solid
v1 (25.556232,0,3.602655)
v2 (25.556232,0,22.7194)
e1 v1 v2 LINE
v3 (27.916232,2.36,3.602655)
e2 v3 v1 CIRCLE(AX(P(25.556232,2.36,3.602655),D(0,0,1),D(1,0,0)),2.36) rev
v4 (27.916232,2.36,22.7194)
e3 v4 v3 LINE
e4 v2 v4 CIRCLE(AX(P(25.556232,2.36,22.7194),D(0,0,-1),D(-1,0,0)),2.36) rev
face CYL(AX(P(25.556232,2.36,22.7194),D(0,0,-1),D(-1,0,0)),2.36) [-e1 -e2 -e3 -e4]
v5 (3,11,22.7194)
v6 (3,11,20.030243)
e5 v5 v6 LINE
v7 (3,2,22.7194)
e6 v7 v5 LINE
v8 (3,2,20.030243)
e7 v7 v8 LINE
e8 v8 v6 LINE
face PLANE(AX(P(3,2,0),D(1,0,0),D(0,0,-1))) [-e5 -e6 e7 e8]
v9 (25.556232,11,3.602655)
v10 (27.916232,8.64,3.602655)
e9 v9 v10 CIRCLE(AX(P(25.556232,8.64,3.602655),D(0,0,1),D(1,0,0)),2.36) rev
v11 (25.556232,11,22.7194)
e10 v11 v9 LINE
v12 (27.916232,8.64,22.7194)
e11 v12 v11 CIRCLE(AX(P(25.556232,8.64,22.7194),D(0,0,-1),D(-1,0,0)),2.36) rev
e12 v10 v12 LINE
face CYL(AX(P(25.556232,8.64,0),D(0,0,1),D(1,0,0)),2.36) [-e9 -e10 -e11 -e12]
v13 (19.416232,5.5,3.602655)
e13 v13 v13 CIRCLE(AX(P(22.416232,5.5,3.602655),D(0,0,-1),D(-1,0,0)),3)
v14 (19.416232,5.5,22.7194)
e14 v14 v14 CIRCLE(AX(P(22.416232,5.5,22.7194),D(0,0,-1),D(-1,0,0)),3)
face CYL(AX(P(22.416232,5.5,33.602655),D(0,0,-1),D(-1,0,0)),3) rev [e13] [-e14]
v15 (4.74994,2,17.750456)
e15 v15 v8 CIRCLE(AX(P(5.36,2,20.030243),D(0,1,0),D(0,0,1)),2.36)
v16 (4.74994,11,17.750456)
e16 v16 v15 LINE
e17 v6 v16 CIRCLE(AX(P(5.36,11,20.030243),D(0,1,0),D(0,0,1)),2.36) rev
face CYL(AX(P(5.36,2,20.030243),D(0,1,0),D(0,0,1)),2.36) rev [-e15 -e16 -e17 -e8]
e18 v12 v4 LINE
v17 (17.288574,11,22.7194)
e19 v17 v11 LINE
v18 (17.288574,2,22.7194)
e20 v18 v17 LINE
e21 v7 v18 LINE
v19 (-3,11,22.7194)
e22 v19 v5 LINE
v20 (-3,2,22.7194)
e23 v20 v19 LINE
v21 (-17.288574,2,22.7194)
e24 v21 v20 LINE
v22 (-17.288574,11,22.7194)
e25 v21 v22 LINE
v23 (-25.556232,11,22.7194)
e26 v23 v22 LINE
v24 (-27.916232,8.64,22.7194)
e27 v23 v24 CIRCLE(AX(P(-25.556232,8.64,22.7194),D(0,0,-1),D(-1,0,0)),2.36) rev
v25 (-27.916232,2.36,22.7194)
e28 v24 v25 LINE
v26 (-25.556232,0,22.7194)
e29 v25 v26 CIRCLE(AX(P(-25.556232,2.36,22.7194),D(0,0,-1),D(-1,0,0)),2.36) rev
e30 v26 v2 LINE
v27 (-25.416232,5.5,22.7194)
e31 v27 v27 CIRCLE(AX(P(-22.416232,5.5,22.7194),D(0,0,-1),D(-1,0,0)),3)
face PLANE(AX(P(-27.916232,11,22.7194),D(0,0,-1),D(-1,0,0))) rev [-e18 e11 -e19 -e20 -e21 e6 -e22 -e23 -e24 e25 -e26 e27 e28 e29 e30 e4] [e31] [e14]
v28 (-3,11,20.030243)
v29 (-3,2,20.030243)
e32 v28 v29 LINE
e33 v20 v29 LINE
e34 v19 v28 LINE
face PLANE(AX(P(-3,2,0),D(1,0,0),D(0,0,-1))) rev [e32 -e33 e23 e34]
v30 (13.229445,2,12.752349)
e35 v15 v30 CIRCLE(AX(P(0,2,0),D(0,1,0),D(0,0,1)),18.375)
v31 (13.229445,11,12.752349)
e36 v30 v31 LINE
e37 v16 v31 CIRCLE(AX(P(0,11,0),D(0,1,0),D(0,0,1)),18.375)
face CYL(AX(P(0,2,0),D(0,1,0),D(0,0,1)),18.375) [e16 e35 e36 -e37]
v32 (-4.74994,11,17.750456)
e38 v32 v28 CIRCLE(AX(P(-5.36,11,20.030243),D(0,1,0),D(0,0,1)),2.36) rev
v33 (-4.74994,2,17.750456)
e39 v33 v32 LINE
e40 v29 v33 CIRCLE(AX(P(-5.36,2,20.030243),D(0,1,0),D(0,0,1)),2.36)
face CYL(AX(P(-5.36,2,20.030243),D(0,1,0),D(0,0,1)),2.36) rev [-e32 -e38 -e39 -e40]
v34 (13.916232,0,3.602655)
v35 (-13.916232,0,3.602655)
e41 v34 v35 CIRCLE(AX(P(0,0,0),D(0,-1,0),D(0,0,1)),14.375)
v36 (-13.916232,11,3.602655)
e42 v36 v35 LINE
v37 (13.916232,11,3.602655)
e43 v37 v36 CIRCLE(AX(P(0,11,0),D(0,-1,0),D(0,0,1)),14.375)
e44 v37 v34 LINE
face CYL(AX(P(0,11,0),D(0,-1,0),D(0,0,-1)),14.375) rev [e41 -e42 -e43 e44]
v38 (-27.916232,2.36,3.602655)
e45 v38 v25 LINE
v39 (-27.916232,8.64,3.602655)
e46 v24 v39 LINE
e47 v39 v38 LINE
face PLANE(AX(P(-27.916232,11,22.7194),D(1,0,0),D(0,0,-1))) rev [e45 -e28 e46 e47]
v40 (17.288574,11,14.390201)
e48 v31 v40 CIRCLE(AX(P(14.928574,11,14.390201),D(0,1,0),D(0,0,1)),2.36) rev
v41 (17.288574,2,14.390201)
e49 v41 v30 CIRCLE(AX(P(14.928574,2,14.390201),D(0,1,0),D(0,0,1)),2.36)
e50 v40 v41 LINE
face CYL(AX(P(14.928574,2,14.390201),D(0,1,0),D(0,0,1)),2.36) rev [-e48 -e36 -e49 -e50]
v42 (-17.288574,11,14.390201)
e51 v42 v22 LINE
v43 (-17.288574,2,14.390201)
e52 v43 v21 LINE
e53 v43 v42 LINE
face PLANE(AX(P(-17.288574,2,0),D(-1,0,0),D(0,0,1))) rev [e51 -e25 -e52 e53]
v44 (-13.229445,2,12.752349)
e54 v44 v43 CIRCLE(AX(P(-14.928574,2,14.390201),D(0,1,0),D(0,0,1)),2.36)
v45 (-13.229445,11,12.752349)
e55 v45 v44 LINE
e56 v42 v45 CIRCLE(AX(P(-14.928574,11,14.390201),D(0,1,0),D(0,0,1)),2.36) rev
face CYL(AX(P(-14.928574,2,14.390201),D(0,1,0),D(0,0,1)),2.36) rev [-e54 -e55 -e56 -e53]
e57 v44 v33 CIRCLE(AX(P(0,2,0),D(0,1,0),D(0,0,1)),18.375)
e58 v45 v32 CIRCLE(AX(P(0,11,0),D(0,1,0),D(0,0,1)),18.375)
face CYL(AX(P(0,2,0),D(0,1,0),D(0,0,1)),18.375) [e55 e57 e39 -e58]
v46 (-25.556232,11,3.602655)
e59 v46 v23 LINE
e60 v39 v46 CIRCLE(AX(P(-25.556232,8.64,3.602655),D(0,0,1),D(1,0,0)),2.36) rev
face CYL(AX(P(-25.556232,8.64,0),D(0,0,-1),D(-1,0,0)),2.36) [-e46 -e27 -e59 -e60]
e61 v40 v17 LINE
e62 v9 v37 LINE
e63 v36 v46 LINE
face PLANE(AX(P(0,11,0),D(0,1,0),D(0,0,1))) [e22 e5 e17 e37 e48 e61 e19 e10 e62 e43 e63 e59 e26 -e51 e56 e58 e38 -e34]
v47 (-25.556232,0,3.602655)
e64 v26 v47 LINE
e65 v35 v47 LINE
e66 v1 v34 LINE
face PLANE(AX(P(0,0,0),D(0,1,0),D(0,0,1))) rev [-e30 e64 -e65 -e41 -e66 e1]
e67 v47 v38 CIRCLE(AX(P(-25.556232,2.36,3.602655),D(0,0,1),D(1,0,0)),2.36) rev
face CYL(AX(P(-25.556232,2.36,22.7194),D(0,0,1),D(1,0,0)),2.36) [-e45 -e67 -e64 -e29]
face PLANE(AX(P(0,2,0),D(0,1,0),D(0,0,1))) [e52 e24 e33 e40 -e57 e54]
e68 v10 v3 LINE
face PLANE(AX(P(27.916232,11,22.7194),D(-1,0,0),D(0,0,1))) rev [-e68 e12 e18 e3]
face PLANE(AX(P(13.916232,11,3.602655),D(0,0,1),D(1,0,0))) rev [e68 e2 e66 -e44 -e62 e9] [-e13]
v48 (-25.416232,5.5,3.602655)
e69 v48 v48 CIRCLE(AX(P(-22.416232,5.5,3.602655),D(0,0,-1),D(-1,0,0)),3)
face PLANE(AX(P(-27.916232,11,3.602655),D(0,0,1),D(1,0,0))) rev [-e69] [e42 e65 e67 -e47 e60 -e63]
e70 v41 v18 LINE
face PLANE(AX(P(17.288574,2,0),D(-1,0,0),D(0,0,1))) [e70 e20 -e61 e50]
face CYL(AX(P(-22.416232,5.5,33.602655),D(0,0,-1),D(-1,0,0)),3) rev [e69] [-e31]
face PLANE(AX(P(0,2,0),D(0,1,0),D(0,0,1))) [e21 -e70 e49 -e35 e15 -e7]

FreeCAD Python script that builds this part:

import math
import FreeCAD as App
import Part
import Sketcher
Q = App.Units.Quantity


def edges_at(feature, points):
    """Names of the edges that pass closest to the given points."""
    edges = feature.Shape.Edges
    near = lambda p: min(range(len(edges)), key=lambda i: edges[i].distToShape(Part.Vertex(*p))[0])
    return sorted({f"Edge{near(p) + 1}" for p in points})

doc = App.newDocument("Part")
body = doc.addObject("PartDesign::Body", "Body")

# Sketch on XZ plane
sketch1 = doc.addObject("Sketcher::SketchObject", "Sketch")
body.addObject(sketch1)
sketch1.AttachmentSupport = (doc.XZ_Plane, [""])
sketch1.MapMode = "FlatFace"
sketch1.addGeometry(Part.LineSegment(App.Vector(-27.916232, 22.7194, 0), App.Vector(27.916232, 22.7194, 0)), False)
sketch1.addGeometry(Part.LineSegment(App.Vector(27.916232, 22.7194, 0), App.Vector(27.916232, 3.602655, 0)), False)
sketch1.addGeometry(Part.LineSegment(App.Vector(27.916232, 3.602655, 0), App.Vector(13.916232, 3.602655, 0)), False)
sketch1.addGeometry(Part.ArcOfCircle(Part.Circle(App.Vector(0, 0, 0), App.Vector(0, 0, 1), 14.375), math.radians(14.514173), math.radians(165.485827)), False)
sketch1.addGeometry(Part.LineSegment(App.Vector(-13.916232, 3.602655, 0), App.Vector(-27.916232, 3.602655, 0)), False)
sketch1.addGeometry(Part.LineSegment(App.Vector(-27.916232, 3.602655, 0), App.Vector(-27.916232, 22.7194, 0)), False)
sketch1.addConstraint(Sketcher.Constraint("Coincident", 0, 2, 1, 1))
sketch1.addConstraint(Sketcher.Constraint("Coincident", 1, 2, 2, 1))
sketch1.addConstraint(Sketcher.Constraint("Coincident", 2, 2, 3, 1))
sketch1.addConstraint(Sketcher.Constraint("Coincident", 3, 2, 4, 1))
sketch1.addConstraint(Sketcher.Constraint("Coincident", 4, 2, 5, 1))
sketch1.addConstraint(Sketcher.Constraint("Coincident", 5, 2, 0, 1))
sketch1.addConstraint(Sketcher.Constraint("Horizontal", 0))
sketch1.addConstraint(Sketcher.Constraint("Vertical", 1))
sketch1.addConstraint(Sketcher.Constraint("Horizontal", 2))
sketch1.addConstraint(Sketcher.Constraint("Horizontal", 4))
sketch1.addConstraint(Sketcher.Constraint("Vertical", 5))
sketch1.addConstraint(Sketcher.Constraint("Coincident", 3, 3, -1, 1))
sketch1.addConstraint(Sketcher.Constraint("Symmetric", 1, 2, 4, 2, -2))
sketch1.addConstraint(Sketcher.Constraint("DistanceX", 2, 2, 2, 1, Q("14 mm")))
sketch1.addConstraint(Sketcher.Constraint("Radius", 3, Q("14.375 mm")))
sketch1.addConstraint(Sketcher.Constraint("DistanceY", -1, 1, 0, 2, Q("22.7194 mm")))
sketch1.addConstraint(Sketcher.Constraint("DistanceX", 0, 1, 0, 2, Q("55.832463 mm")))
pad1 = doc.addObject("PartDesign::Pad", "Pad")
body.addObject(pad1)
pad1.Profile = sketch1
pad1.Length = 11
pad1.Reversed = True

# Sketch on XY plane
sketch2 = doc.addObject("Sketcher::SketchObject", "Sketch001")
body.addObject(sketch2)
sketch2.AttachmentSupport = (doc.XY_Plane, [""])
sketch2.MapMode = "FlatFace"
sketch2.AttachmentOffset = App.Placement(App.Vector(0, 0, 3.602655), App.Rotation())
sketch2.addGeometry(Part.Circle(App.Vector(-22.416232, 5.5, 0), App.Vector(0, 0, 1), 3), False)
sketch2.addGeometry(Part.Circle(App.Vector(22.416232, 5.5, 0), App.Vector(0, 0, 1), 3), False)
sketch2.addConstraint(Sketcher.Constraint("Equal", 0, 1))
sketch2.addConstraint(Sketcher.Constraint("Symmetric", 0, 3, 1, 3, -2))
sketch2.addConstraint(Sketcher.Constraint("Diameter", 0, Q("6 mm")))
sketch2.addConstraint(Sketcher.Constraint("DistanceY", -1, 1, 0, 3, Q("5.5 mm")))
sketch2.addConstraint(Sketcher.Constraint("DistanceX", 0, 3, -1, 1, Q("22.416232 mm")))
pocket1 = doc.addObject("PartDesign::Pocket", "Pocket")
body.addObject(pocket1)
pocket1.Profile = sketch2
pocket1.Length = 30
pocket1.Reversed = True

# Sketch on XZ plane
sketch3 = doc.addObject("Sketcher::SketchObject", "Sketch002")
body.addObject(sketch3)
sketch3.AttachmentSupport = (doc.XZ_Plane, [""])
sketch3.MapMode = "FlatFace"
sketch3.AttachmentOffset = App.Placement(App.Vector(0, 0, -11), App.Rotation())
sketch3.addGeometry(Part.LineSegment(App.Vector(-17.288574, 6.224614, 0), App.Vector(-17.288574, 22.7194, 0)), False)
sketch3.addGeometry(Part.LineSegment(App.Vector(-17.288574, 22.7194, 0), App.Vector(-3, 22.7194, 0)), False)
sketch3.addGeometry(Part.LineSegment(App.Vector(-3, 22.7194, 0), App.Vector(-3, 18.128448, 0)), False)
sketch3.addGeometry(Part.ArcOfCircle(Part.Circle(App.Vector(0, 0, 0), App.Vector(0, 0, 1), 18.375), math.radians(99.396477), math.radians(160.198989)), False)
sketch3.addGeometry(Part.LineSegment(App.Vector(3, 18.128448, 0), App.Vector(3, 22.7194, 0)), False)
sketch3.addGeometry(Part.LineSegment(App.Vector(3, 22.7194, 0), App.Vector(17.288574, 22.7194, 0)), False)
sketch3.addGeometry(Part.LineSegment(App.Vector(17.288574, 22.7194, 0), App.Vector(17.288574, 6.224614, 0)), False)
sketch3.addGeometry(Part.ArcOfCircle(Part.Circle(App.Vector(0, 0, 0), App.Vector(0, 0, 1), 18.375), math.radians(19.801011), math.radians(80.603523)), False)
sketch3.addConstraint(Sketcher.Constraint("Coincident", 0, 2, 1, 1))
sketch3.addConstraint(Sketcher.Constraint("Coincident", 1, 2, 2, 1))
sketch3.addConstraint(Sketcher.Constraint("Coincident", 2, 2, 3, 1))
sketch3.addConstraint(Sketcher.Constraint("Coincident", 3, 2, 0, 1))
sketch3.addConstraint(Sketcher.Constraint("Coincident", 4, 2, 5, 1))
sketch3.addConstraint(Sketcher.Constraint("Coincident", 5, 2, 6, 1))
sketch3.addConstraint(Sketcher.Constraint("Coincident", 6, 2, 7, 1))
sketch3.addConstraint(Sketcher.Constraint("Coincident", 7, 2, 4, 1))
sketch3.addConstraint(Sketcher.Constraint("Vertical", 0))
sketch3.addConstraint(Sketcher.Constraint("Horizontal", 1))
sketch3.addConstraint(Sketcher.Constraint("Vertical", 2))
sketch3.addConstraint(Sketcher.Constraint("Vertical", 4))
sketch3.addConstraint(Sketcher.Constraint("Horizontal", 5))
sketch3.addConstraint(Sketcher.Constraint("Vertical", 6))
sketch3.addConstraint(Sketcher.Constraint("Coincident", 3, 3, -1, 1))
sketch3.addConstraint(Sketcher.Constraint("Coincident", 7, 3, -1, 1))
sketch3.addConstraint(Sketcher.Constraint("Equal", 3, 7))
sketch3.addConstraint(Sketcher.Constraint("Symmetric", 1, 2, 4, 2, -2))
sketch3.addConstraint(Sketcher.Constraint("Horizontal", 3, 2, 6, 2))
sketch3.addConstraint(Sketcher.Constraint("DistanceX", 1, 2, -1, 1, Q("3 mm")))
sketch3.addConstraint(Sketcher.Constraint("Radius", 3, Q("18.375 mm")))
sketch3.addConstraint(Sketcher.Constraint("DistanceY", 2, 2, 2, 1, Q("4.590952 mm")))
sketch3.addConstraint(Sketcher.Constraint("DistanceX", 1, 1, 1, 2, Q("14.288574 mm")))
pocket2 = doc.addObject("PartDesign::Pocket", "Pocket001")
body.addObject(pocket2)
pocket2.Profile = sketch3
pocket2.Length = 9
pocket2.Reversed = True
doc.recompute()

fillet = doc.addObject("PartDesign::Fillet", "Fillet")
body.addObject(fillet)
fillet.Base = (pocket2, edges_at(pocket2, [
    (-17.289, 6.5, 6.225),
    (-3, 6.5, 18.128),
    (3, 6.5, 18.128),
    (17.289, 6.5, 6.225),
]))
fillet.Radius = 2.36
doc.recompute()

fillet2 = doc.addObject("PartDesign::Fillet", "Fillet001")
body.addObject(fillet2)
fillet2.Base = (fillet, edges_at(fillet, [
    (27.916, 11, 13.161),
    (-27.916, 11, 13.161),
    (27.916, 0, 13.161),
    (-27.916, 0, 13.161),
]))
fillet2.Radius = 2.36

doc.recompute()
